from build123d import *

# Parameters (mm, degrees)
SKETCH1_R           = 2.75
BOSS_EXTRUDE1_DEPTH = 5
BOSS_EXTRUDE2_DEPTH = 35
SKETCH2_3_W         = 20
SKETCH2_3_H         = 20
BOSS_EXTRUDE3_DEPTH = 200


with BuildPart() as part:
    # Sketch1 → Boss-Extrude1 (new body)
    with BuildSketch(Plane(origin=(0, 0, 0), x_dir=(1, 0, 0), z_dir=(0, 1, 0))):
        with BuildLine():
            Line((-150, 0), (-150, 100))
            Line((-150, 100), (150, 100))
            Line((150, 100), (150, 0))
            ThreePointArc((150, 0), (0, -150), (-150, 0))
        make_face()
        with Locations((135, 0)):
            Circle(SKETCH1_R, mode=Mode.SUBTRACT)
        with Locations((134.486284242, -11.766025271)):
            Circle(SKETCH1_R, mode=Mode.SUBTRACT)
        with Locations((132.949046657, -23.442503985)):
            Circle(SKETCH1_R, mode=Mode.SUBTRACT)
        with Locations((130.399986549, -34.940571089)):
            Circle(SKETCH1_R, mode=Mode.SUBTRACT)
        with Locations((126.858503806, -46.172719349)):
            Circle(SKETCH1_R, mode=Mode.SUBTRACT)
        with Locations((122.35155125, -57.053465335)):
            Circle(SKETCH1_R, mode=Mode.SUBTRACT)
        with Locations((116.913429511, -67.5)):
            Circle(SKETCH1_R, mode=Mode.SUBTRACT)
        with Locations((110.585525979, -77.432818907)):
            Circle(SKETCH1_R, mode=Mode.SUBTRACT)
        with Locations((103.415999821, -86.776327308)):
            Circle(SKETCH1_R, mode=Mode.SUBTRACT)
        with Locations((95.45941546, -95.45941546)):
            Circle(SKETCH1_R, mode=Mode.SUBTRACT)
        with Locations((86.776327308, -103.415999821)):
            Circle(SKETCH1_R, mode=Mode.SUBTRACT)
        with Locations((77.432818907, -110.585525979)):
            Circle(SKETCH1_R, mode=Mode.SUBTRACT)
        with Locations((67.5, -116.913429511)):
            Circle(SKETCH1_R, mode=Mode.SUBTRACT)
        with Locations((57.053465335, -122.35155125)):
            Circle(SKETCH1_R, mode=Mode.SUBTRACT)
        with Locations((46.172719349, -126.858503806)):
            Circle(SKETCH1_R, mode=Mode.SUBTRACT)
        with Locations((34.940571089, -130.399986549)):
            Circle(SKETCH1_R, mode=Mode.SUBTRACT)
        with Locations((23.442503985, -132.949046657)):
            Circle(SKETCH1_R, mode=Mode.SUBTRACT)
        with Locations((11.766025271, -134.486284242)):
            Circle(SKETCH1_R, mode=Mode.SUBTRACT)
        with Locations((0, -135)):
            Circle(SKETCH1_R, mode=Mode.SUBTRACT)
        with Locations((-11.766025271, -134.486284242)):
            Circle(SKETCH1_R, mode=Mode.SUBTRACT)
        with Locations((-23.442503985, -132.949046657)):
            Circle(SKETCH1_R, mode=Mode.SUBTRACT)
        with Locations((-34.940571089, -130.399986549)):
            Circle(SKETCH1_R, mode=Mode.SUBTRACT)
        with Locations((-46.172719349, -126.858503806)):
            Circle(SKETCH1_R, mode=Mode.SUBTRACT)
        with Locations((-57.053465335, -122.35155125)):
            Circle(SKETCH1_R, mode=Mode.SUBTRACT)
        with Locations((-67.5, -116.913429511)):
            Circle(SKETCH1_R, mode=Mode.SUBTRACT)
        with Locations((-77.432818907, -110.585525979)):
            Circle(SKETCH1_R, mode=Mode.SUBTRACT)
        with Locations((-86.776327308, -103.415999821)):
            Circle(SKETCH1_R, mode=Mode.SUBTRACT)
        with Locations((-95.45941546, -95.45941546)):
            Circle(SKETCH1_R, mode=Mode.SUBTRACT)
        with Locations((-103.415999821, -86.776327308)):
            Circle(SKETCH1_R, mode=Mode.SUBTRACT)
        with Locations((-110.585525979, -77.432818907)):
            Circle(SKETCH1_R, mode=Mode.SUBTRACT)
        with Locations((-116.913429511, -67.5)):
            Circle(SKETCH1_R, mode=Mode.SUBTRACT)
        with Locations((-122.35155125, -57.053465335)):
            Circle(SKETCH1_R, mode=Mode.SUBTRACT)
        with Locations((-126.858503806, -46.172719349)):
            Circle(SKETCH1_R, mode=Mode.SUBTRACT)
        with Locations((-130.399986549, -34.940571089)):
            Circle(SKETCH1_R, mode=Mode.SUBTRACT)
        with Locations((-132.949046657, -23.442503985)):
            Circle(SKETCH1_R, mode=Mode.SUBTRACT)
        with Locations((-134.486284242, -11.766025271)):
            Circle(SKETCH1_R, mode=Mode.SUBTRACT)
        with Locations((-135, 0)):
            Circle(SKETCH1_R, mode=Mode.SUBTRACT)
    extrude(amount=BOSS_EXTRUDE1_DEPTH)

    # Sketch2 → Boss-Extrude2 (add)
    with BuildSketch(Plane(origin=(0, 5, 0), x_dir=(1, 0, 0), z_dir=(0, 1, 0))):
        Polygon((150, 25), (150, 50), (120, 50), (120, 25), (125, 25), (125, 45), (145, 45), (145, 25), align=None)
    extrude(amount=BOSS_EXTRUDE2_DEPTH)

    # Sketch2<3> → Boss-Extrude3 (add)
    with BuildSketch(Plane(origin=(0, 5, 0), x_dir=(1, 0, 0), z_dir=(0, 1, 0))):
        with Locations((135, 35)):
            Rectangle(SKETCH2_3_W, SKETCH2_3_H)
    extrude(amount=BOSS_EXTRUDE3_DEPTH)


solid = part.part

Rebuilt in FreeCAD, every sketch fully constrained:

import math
import FreeCAD as App
import Part
import Sketcher
from FreeCAD import Vector
Q = App.Units.Quantity

doc = App.newDocument("Part")
body = doc.addObject("PartDesign::Body", "Body")

# Sketch on XZ plane
sketch1 = doc.addObject("Sketcher::SketchObject", "Sketch")
body.addObject(sketch1)
sketch1.AttachmentSupport = (doc.XZ_Plane, [""])
sketch1.MapMode = "FlatFace"
sketch1.addGeometry(Part.LineSegment(Vector(-150, -100, 0), Vector(-150, 0, 0)), False)
sketch1.addGeometry(Part.ArcOfCircle(Part.Circle(Vector(0, 0, 0), Vector(0, 0, 1), 150), math.radians(0), math.radians(180)), False)
sketch1.addGeometry(Part.LineSegment(Vector(150, 0, 0), Vector(150, -100, 0)), False)
sketch1.addGeometry(Part.LineSegment(Vector(150, -100, 0), Vector(-150, -100, 0)), False)
sketch1.addGeometry(Part.Circle(Vector(86.8, 103.4, 0), Vector(0, 0, 1), 2.8), False)
sketch1.addGeometry(Part.Circle(Vector(77.4, 110.6, 0), Vector(0, 0, 1), 2.8), False)
sketch1.addGeometry(Part.Circle(Vector(34.9, 130.4, 0), Vector(0, 0, 1), 2.8), False)
sketch1.addGeometry(Part.Circle(Vector(57.1, 122.4, 0), Vector(0, 0, 1), 2.8), False)
sketch1.addGeometry(Part.Circle(Vector(46.2, 126.9, 0), Vector(0, 0, 1), 2.8), False)
sketch1.addGeometry(Part.Circle(Vector(23.4, 132.9, 0), Vector(0, 0, 1), 2.8), False)
sketch1.addGeometry(Part.Circle(Vector(11.8, 134.5, 0), Vector(0, 0, 1), 2.8), False)
sketch1.addGeometry(Part.Circle(Vector(67.5, 116.9, 0), Vector(0, 0, 1), 2.8), False)
sketch1.addGeometry(Part.Circle(Vector(103.4, 86.8, 0), Vector(0, 0, 1), 2.8), False)
sketch1.addGeometry(Part.Circle(Vector(95.5, 95.5, 0), Vector(0, 0, 1), 2.8), False)
sketch1.addGeometry(Part.Circle(Vector(110.6, 77.4, 0), Vector(0, 0, 1), 2.8), False)
sketch1.addGeometry(Part.Circle(Vector(0, 135, 0), Vector(0, 0, 1), 2.8), False)
sketch1.addGeometry(Part.Circle(Vector(-11.8, 134.5, 0), Vector(0, 0, 1), 2.8), False)
sketch1.addGeometry(Part.Circle(Vector(-23.4, 132.9, 0), Vector(0, 0, 1), 2.8), False)
sketch1.addGeometry(Part.Circle(Vector(-34.9, 130.4, 0), Vector(0, 0, 1), 2.8), False)
sketch1.addGeometry(Part.Circle(Vector(-46.2, 126.9, 0), Vector(0, 0, 1), 2.8), False)
sketch1.addGeometry(Part.Circle(Vector(-57.1, 122.4, 0), Vector(0, 0, 1), 2.8), False)
sketch1.addGeometry(Part.Circle(Vector(-67.5, 116.9, 0), Vector(0, 0, 1), 2.8), False)
sketch1.addGeometry(Part.Circle(Vector(-77.4, 110.6, 0), Vector(0, 0, 1), 2.8), False)
sketch1.addGeometry(Part.Circle(Vector(-86.8, 103.4, 0), Vector(0, 0, 1), 2.8), False)
sketch1.addGeometry(Part.Circle(Vector(-95.5, 95.5, 0), Vector(0, 0, 1), 2.8), False)
sketch1.addGeometry(Part.Circle(Vector(-103.4, 86.8, 0), Vector(0, 0, 1), 2.8), False)
sketch1.addGeometry(Part.Circle(Vector(-110.6, 77.4, 0), Vector(0, 0, 1), 2.8), False)
sketch1.addGeometry(Part.Circle(Vector(116.9, 67.5, 0), Vector(0, 0, 1), 2.8), False)
sketch1.addGeometry(Part.Circle(Vector(122.4, 57.1, 0), Vector(0, 0, 1), 2.8), False)
sketch1.addGeometry(Part.Circle(Vector(126.9, 46.2, 0), Vector(0, 0, 1), 2.8), False)
sketch1.addGeometry(Part.Circle(Vector(130.4, 34.9, 0), Vector(0, 0, 1), 2.8), False)
sketch1.addGeometry(Part.Circle(Vector(132.9, 23.4, 0), Vector(0, 0, 1), 2.8), False)
sketch1.addGeometry(Part.Circle(Vector(134.5, 11.8, 0), Vector(0, 0, 1), 2.8), False)
sketch1.addGeometry(Part.Circle(Vector(135, 0, 0), Vector(0, 0, 1), 2.8), False)
sketch1.addGeometry(Part.Circle(Vector(-116.9, 67.5, 0), Vector(0, 0, 1), 2.8), False)
sketch1.addGeometry(Part.Circle(Vector(-122.4, 57.1, 0), Vector(0, 0, 1), 2.8), False)
sketch1.addGeometry(Part.Circle(Vector(-126.9, 46.2, 0), Vector(0, 0, 1), 2.8), False)
sketch1.addGeometry(Part.Circle(Vector(-130.4, 34.9, 0), Vector(0, 0, 1), 2.8), False)
sketch1.addGeometry(Part.Circle(Vector(-132.9, 23.4, 0), Vector(0, 0, 1), 2.8), False)
sketch1.addGeometry(Part.Circle(Vector(-134.5, 11.8, 0), Vector(0, 0, 1), 2.8), False)
sketch1.addGeometry(Part.Circle(Vector(-135, 0, 0), Vector(0, 0, 1), 2.8), False)
sketch1.addConstraint(Sketcher.Constraint("Tangent", 0, 2, 1, 2))
sketch1.addConstraint(Sketcher.Constraint("Tangent", 1, 1, 2, 1))
sketch1.addConstraint(Sketcher.Constraint("Coincident", 2, 2, 3, 1))
sketch1.addConstraint(Sketcher.Constraint("Coincident", 3, 2, 0, 1))
sketch1.addConstraint(Sketcher.Constraint("Vertical", 0))
sketch1.addConstraint(Sketcher.Constraint("Vertical", 2))
sketch1.addConstraint(Sketcher.Constraint("Horizontal", 3))
sketch1.addConstraint(Sketcher.Constraint("Coincident", 1, 3, -1, 1))
sketch1.addConstraint(Sketcher.Constraint("Equal", 4, 5))
sketch1.addConstraint(Sketcher.Constraint("Equal", 5, 6))
sketch1.addConstraint(Sketcher.Constraint("Equal", 6, 7))
sketch1.addConstraint(Sketcher.Constraint("Equal", 7, 8))
sketch1.addConstraint(Sketcher.Constraint("Equal", 8, 9))
sketch1.addConstraint(Sketcher.Constraint("Equal", 9, 10))
sketch1.addConstraint(Sketcher.Constraint("Equal", 10, 11))
sketch1.addConstraint(Sketcher.Constraint("Equal", 11, 12))
sketch1.addConstraint(Sketcher.Constraint("Equal", 12, 13))
sketch1.addConstraint(Sketcher.Constraint("Equal", 13, 14))
sketch1.addConstraint(Sketcher.Constraint("Equal", 14, 15))
sketch1.addConstraint(Sketcher.Constraint("Equal", 15, 16))
sketch1.addConstraint(Sketcher.Constraint("Equal", 16, 17))
sketch1.addConstraint(Sketcher.Constraint("Equal", 17, 18))
sketch1.addConstraint(Sketcher.Constraint("Equal", 18, 19))
sketch1.addConstraint(Sketcher.Constraint("Equal", 19, 20))
sketch1.addConstraint(Sketcher.Constraint("Equal", 20, 21))
sketch1.addConstraint(Sketcher.Constraint("Equal", 21, 22))
sketch1.addConstraint(Sketcher.Constraint("Equal", 22, 23))
sketch1.addConstraint(Sketcher.Constraint("Equal", 23, 24))
sketch1.addConstraint(Sketcher.Constraint("Equal", 24, 25))
sketch1.addConstraint(Sketcher.Constraint("Equal", 25, 26))
sketch1.addConstraint(Sketcher.Constraint("Equal", 26, 27))
sketch1.addConstraint(Sketcher.Constraint("Equal", 27, 28))
sketch1.addConstraint(Sketcher.Constraint("Equal", 28, 29))
sketch1.addConstraint(Sketcher.Constraint("Equal", 29, 30))
sketch1.addConstraint(Sketcher.Constraint("Equal", 30, 31))
sketch1.addConstraint(Sketcher.Constraint("Equal", 31, 32))
sketch1.addConstraint(Sketcher.Constraint("Equal", 32, 33))
sketch1.addConstraint(Sketcher.Constraint("Equal", 33, 34))
sketch1.addConstraint(Sketcher.Constraint("Equal", 34, 35))
sketch1.addConstraint(Sketcher.Constraint("Equal", 35, 36))
sketch1.addConstraint(Sketcher.Constraint("Equal", 36, 37))
sketch1.addConstraint(Sketcher.Constraint("Equal", 37, 38))
sketch1.addConstraint(Sketcher.Constraint("Equal", 38, 39))
sketch1.addConstraint(Sketcher.Constraint("Equal", 39, 40))
sketch1.addConstraint(Sketcher.Constraint("Symmetric", 33, 3, 40, 3, -1, 1))
sketch1.addConstraint(Sketcher.Constraint("Symmetric", 10, 3, 16, 3, -2))
sketch1.addConstraint(Sketcher.Constraint("Symmetric", 9, 3, 17, 3, -2))
sketch1.addConstraint(Sketcher.Constraint("Symmetric", 6, 3, 18, 3, -2))
sketch1.addConstraint(Sketcher.Constraint("Symmetric", 8, 3, 19, 3, -2))
sketch1.addConstraint(Sketcher.Constraint("Symmetric", 7, 3, 20, 3, -2))
sketch1.addConstraint(Sketcher.Constraint("Symmetric", 11, 3, 21, 3, -2))
sketch1.addConstraint(Sketcher.Constraint("Symmetric", 5, 3, 22, 3, -2))
sketch1.addConstraint(Sketcher.Constraint("Symmetric", 4, 3, 23, 3, -2))
sketch1.addConstraint(Sketcher.Constraint("Symmetric", 13, 3, 24, 3, -2))
sketch1.addConstraint(Sketcher.Constraint("Symmetric", 12, 3, 25, 3, -2))
sketch1.addConstraint(Sketcher.Constraint("Symmetric", 14, 3, 26, 3, -2))
sketch1.addConstraint(Sketcher.Constraint("Symmetric", 27, 3, 34, 3, -2))
sketch1.addConstraint(Sketcher.Constraint("Symmetric", 28, 3, 35, 3, -2))
sketch1.addConstraint(Sketcher.Constraint("Symmetric", 29, 3, 36, 3, -2))
sketch1.addConstraint(Sketcher.Constraint("Symmetric", 30, 3, 37, 3, -2))
sketch1.addConstraint(Sketcher.Constraint("Symmetric", 31, 3, 38, 3, -2))
sketch1.addConstraint(Sketcher.Constraint("Symmetric", 32, 3, 39, 3, -2))
sketch1.addConstraint(Sketcher.Constraint("PointOnObject", 15, 3, -2))
sketch1.addConstraint(Sketcher.Constraint("PointOnObject", 33, 3, -1))
sketch1.addConstraint(Sketcher.Constraint("Radius", 1, Q("150 mm")))
sketch1.addConstraint(Sketcher.Constraint("Diameter", 4, Q("5.5 mm")))
sketch1.addConstraint(Sketcher.Constraint("DistanceY", 0, 1, 0, 2, Q("100 mm")))
sketch1.addConstraint(Sketcher.Constraint("DistanceY", -1, 1, 15, 3, Q("135 mm")))
sketch1.addConstraint(Sketcher.Constraint("DistanceX", -1, 1, 33, 3, Q("135 mm")))
sketch1.addConstraint(Sketcher.Constraint("DistanceX", -1, 1, 11, 3, Q("67.5 mm")))
sketch1.addConstraint(Sketcher.Constraint("DistanceY", -1, 1, 27, 3, Q("67.5 mm")))
sketch1.addConstraint(Sketcher.Constraint("DistanceY", -1, 1, 4, 3, Q("103.416 mm")))
sketch1.addConstraint(Sketcher.Constraint("DistanceX", -1, 1, 12, 3, Q("103.416 mm")))
sketch1.addConstraint(Sketcher.Constraint("DistanceX", 8, 3, 5, 3, Q("31.2601 mm")))
sketch1.addConstraint(Sketcher.Constraint("DistanceY", 12, 3, 5, 3, Q("23.809199 mm")))
sketch1.addConstraint(Sketcher.Constraint("DistanceX", 4, 3, 14, 3, Q("23.809199 mm")))
sketch1.addConstraint(Sketcher.Constraint("DistanceY", 29, 3, 14, 3, Q("31.2601 mm")))
sketch1.addConstraint(Sketcher.Constraint("DistanceX", -1, 1, 5, 3, Q("77.432819 mm")))
sketch1.addConstraint(Sketcher.Constraint("DistanceX", -1, 1, 6, 3, Q("34.940571 mm")))
sketch1.addConstraint(Sketcher.Constraint("DistanceY", -1, 1, 7, 3, Q("122.351551 mm")))
sketch1.addConstraint(Sketcher.Constraint("DistanceY", -1, 1, 11, 3, Q("116.91343 mm")))
sketch1.addConstraint(Sketcher.Constraint("DistanceY", -1, 1, 14, 3, Q("77.432819 mm")))
sketch1.addConstraint(Sketcher.Constraint("DistanceX", -1, 1, 27, 3, Q("116.91343 mm")))
sketch1.addConstraint(Sketcher.Constraint("DistanceX", -1, 1, 28, 3, Q("122.351551 mm")))
sketch1.addConstraint(Sketcher.Constraint("DistanceY", -1, 1, 30, 3, Q("34.940571 mm")))
sketch1.addConstraint(Sketcher.Constraint("DistanceX", 5, 3, 4, 3, Q("9.343508 mm")))
sketch1.addConstraint(Sketcher.Constraint("DistanceY", 5, 3, 6, 3, Q("19.814461 mm")))
sketch1.addConstraint(Sketcher.Constraint("DistanceX", 7, 3, 4, 3, Q("29.722862 mm")))
sketch1.addConstraint(Sketcher.Constraint("DistanceY", 6, 3, 9, 3, Q("2.54906 mm")))
sketch1.addConstraint(Sketcher.Constraint("DistanceX", 9, 3, 7, 3, Q("33.610961 mm")))
sketch1.addConstraint(Sketcher.Constraint("DistanceX", 10, 3, 9, 3, Q("11.676479 mm")))
sketch1.addConstraint(Sketcher.Constraint("DistanceY", 8, 3, 10, 3, Q("7.62778 mm")))
sketch1.addConstraint(Sketcher.Constraint("DistanceY", 5, 3, 10, 3, Q("23.900758 mm")))
sketch1.addConstraint(Sketcher.Constraint("DistanceX", 4, 3, 13, 3, Q("8.683088 mm")))
sketch1.addConstraint(Sketcher.Constraint("DistanceY", 12, 3, 13, 3, Q("8.683088 mm")))
sketch1.addConstraint(Sketcher.Constraint("DistanceY", 14, 3, 12, 3, Q("9.343508 mm")))
sketch1.addConstraint(Sketcher.Constraint("DistanceY", 28, 3, 12, 3, Q("29.722862 mm")))
sketch1.addConstraint(Sketcher.Constraint("DistanceX", 13, 3, 29, 3, Q("31.399088 mm")))
sketch1.addConstraint(Sketcher.Constraint("DistanceX", 14, 3, 30, 3, Q("19.814461 mm")))
sketch1.addConstraint(Sketcher.Constraint("DistanceX", 30, 3, 31, 3, Q("2.54906 mm")))
sketch1.addConstraint(Sketcher.Constraint("DistanceY", 31, 3, 28, 3, Q("33.610961 mm")))
sketch1.addConstraint(Sketcher.Constraint("DistanceY", 32, 3, 31, 3, Q("11.676479 mm")))
sketch1.addConstraint(Sketcher.Constraint("DistanceX", 29, 3, 32, 3, Q("7.62778 mm")))
pad1 = doc.addObject("PartDesign::Pad", "Pad")
body.addObject(pad1)
pad1.Profile = sketch1
pad1.Length = 5
pad1.Reversed = True

# Sketch on XZ plane
sketch2 = doc.addObject("Sketcher::SketchObject", "Sketch001")
body.addObject(sketch2)
sketch2.AttachmentSupport = (doc.XZ_Plane, [""])
sketch2.MapMode = "FlatFace"
sketch2.AttachmentOffset = App.Placement(Vector(0, 0, -5), App.Rotation())
sketch2.addGeometry(Part.LineSegment(Vector(150, -25, 0), Vector(150, -50, 0)), False)
sketch2.addGeometry(Part.LineSegment(Vector(150, -50, 0), Vector(120, -50, 0)), False)
sketch2.addGeometry(Part.LineSegment(Vector(120, -50, 0), Vector(120, -25, 0)), False)
sketch2.addGeometry(Part.LineSegment(Vector(120, -25, 0), Vector(125, -25, 0)), False)
sketch2.addGeometry(Part.LineSegment(Vector(125, -25, 0), Vector(125, -45, 0)), False)
sketch2.addGeometry(Part.LineSegment(Vector(125, -45, 0), Vector(145, -45, 0)), False)
sketch2.addGeometry(Part.LineSegment(Vector(145, -45, 0), Vector(145, -25, 0)), False)
sketch2.addGeometry(Part.LineSegment(Vector(145, -25, 0), Vector(150, -25, 0)), False)
sketch2.addConstraint(Sketcher.Constraint("Coincident", 0, 2, 1, 1))
sketch2.addConstraint(Sketcher.Constraint("Coincident", 1, 2, 2, 1))
sketch2.addConstraint(Sketcher.Constraint("Coincident", 2, 2, 3, 1))
sketch2.addConstraint(Sketcher.Constraint("Coincident", 3, 2, 4, 1))
sketch2.addConstraint(Sketcher.Constraint("Coincident", 4, 2, 5, 1))
sketch2.addConstraint(Sketcher.Constraint("Coincident", 5, 2, 6, 1))
sketch2.addConstraint(Sketcher.Constraint("Coincident", 6, 2, 7, 1))
sketch2.addConstraint(Sketcher.Constraint("Coincident", 7, 2, 0, 1))
sketch2.addConstraint(Sketcher.Constraint("Vertical", 0))
sketch2.addConstraint(Sketcher.Constraint("Horizontal", 1))
sketch2.addConstraint(Sketcher.Constraint("Vertical", 2))
sketch2.addConstraint(Sketcher.Constraint("Horizontal", 3))
sketch2.addConstraint(Sketcher.Constraint("Vertical", 4))
sketch2.addConstraint(Sketcher.Constraint("Horizontal", 5))
sketch2.addConstraint(Sketcher.Constraint("Vertical", 6))
sketch2.addConstraint(Sketcher.Constraint("Horizontal", 7))
sketch2.addConstraint(Sketcher.Constraint("Horizontal", 3, 2, 6, 2))
sketch2.addConstraint(Sketcher.Constraint("Equal", 3, 7))
sketch2.addConstraint(Sketcher.Constraint("Equal", 5, 4))
sketch2.addConstraint(Sketcher.Constraint("DistanceX", 1, 2, 1, 1, Q("30 mm")))
sketch2.addConstraint(Sketcher.Constraint("DistanceX", 3, 1, 3, 2, Q("5 mm")))
sketch2.addConstraint(Sketcher.Constraint("DistanceY", 0, 2, 0, 1, Q("25 mm")))
sketch2.addConstraint(Sketcher.Constraint("DistanceX", -1, 1, 0, 2, Q("150 mm")))
sketch2.addConstraint(Sketcher.Constraint("DistanceY", 0, 2, -1, 1, Q("50 mm")))
pad2 = doc.addObject("PartDesign::Pad", "Pad001")
body.addObject(pad2)
pad2.Profile = sketch2
pad2.Length = 35
pad2.Reversed = True

# Sketch on XZ plane
sketch3 = doc.addObject("Sketcher::SketchObject", "Sketch002")
body.addObject(sketch3)
sketch3.AttachmentSupport = (doc.XZ_Plane, [""])
sketch3.MapMode = "FlatFace"
sketch3.AttachmentOffset = App.Placement(Vector(0, 0, -5), App.Rotation())
sketch3.addGeometry(Part.LineSegment(Vector(125, -45, 0), Vector(125, -25, 0)), False)
sketch3.addGeometry(Part.LineSegment(Vector(125, -25, 0), Vector(145, -25, 0)), False)
sketch3.addGeometry(Part.LineSegment(Vector(145, -25, 0), Vector(145, -45, 0)), False)
sketch3.addGeometry(Part.LineSegment(Vector(145, -45, 0), Vector(125, -45, 0)), False)
sketch3.addConstraint(Sketcher.Constraint("Coincident", 0, 2, 1, 1))
sketch3.addConstraint(Sketcher.Constraint("Coincident", 1, 2, 2, 1))
sketch3.addConstraint(Sketcher.Constraint("Coincident", 2, 2, 3, 1))
sketch3.addConstraint(Sketcher.Constraint("Coincident", 3, 2, 0, 1))
sketch3.addConstraint(Sketcher.Constraint("Vertical", 0))
sketch3.addConstraint(Sketcher.Constraint("Horizontal", 1))
sketch3.addConstraint(Sketcher.Constraint("Vertical", 2))
sketch3.addConstraint(Sketcher.Constraint("Horizontal", 3))
sketch3.addConstraint(Sketcher.Constraint("Equal", 3, 0))
sketch3.addConstraint(Sketcher.Constraint("DistanceX", 1, 1, 1, 2, Q("20 mm")))
sketch3.addConstraint(Sketcher.Constraint("DistanceX", -1, 1, 0, 2, Q("125 mm")))
sketch3.addConstraint(Sketcher.Constraint("DistanceY", 0, 2, -1, 1, Q("25 mm")))
pad3 = doc.addObject("PartDesign::Pad", "Pad002")
body.addObject(pad3)
pad3.Profile = sketch3
pad3.Length = 200
pad3.Reversed = True

doc.recompute()
